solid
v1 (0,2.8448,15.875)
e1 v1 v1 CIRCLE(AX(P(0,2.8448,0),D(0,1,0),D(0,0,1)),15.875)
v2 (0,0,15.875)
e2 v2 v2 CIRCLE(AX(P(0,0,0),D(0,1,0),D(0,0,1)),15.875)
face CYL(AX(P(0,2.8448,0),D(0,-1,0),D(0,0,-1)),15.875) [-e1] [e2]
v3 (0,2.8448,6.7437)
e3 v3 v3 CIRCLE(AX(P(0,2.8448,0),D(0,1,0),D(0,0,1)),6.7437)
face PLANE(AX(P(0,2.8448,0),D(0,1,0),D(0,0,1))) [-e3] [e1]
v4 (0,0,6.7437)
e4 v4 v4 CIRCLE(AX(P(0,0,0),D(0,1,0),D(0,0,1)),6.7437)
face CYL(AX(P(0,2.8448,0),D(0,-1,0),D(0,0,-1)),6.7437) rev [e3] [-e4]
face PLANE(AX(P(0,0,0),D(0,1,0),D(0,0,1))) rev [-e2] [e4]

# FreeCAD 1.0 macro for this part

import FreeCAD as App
import Part
import Sketcher

V = App.Vector
Q = App.Units.Quantity

doc = App.newDocument("Part")
body = doc.addObject("PartDesign::Body", "Body")

sketch1 = body.newObject("Sketcher::SketchObject", "Sketch")
sketch1.AttachmentSupport = (doc.getObject("XZ_Plane"), [""])
sketch1.MapMode = "FlatFace"
sketch1.addGeometry([
    Part.Circle(V(0, 0, 0), V(0, 0, 1), 16),
    Part.Circle(V(0, 0, 0), V(0, 0, 1), 7),
], False)
sketch1.addConstraint([
    Sketcher.Constraint("Coincident", 0, 3, -1, 1),
    Sketcher.Constraint("Coincident", 1, 3, -1, 1),
    Sketcher.Constraint("Diameter", 0, Q("1.25 in")),
    Sketcher.Constraint("Diameter", 1, Q("0.531 in")),
])
pad1 = body.newObject("PartDesign::Pad", "Pad")
pad1.Profile = sketch1
pad1.Length = Q("0.112 in")
pad1.Reversed = True

doc.recompute()
